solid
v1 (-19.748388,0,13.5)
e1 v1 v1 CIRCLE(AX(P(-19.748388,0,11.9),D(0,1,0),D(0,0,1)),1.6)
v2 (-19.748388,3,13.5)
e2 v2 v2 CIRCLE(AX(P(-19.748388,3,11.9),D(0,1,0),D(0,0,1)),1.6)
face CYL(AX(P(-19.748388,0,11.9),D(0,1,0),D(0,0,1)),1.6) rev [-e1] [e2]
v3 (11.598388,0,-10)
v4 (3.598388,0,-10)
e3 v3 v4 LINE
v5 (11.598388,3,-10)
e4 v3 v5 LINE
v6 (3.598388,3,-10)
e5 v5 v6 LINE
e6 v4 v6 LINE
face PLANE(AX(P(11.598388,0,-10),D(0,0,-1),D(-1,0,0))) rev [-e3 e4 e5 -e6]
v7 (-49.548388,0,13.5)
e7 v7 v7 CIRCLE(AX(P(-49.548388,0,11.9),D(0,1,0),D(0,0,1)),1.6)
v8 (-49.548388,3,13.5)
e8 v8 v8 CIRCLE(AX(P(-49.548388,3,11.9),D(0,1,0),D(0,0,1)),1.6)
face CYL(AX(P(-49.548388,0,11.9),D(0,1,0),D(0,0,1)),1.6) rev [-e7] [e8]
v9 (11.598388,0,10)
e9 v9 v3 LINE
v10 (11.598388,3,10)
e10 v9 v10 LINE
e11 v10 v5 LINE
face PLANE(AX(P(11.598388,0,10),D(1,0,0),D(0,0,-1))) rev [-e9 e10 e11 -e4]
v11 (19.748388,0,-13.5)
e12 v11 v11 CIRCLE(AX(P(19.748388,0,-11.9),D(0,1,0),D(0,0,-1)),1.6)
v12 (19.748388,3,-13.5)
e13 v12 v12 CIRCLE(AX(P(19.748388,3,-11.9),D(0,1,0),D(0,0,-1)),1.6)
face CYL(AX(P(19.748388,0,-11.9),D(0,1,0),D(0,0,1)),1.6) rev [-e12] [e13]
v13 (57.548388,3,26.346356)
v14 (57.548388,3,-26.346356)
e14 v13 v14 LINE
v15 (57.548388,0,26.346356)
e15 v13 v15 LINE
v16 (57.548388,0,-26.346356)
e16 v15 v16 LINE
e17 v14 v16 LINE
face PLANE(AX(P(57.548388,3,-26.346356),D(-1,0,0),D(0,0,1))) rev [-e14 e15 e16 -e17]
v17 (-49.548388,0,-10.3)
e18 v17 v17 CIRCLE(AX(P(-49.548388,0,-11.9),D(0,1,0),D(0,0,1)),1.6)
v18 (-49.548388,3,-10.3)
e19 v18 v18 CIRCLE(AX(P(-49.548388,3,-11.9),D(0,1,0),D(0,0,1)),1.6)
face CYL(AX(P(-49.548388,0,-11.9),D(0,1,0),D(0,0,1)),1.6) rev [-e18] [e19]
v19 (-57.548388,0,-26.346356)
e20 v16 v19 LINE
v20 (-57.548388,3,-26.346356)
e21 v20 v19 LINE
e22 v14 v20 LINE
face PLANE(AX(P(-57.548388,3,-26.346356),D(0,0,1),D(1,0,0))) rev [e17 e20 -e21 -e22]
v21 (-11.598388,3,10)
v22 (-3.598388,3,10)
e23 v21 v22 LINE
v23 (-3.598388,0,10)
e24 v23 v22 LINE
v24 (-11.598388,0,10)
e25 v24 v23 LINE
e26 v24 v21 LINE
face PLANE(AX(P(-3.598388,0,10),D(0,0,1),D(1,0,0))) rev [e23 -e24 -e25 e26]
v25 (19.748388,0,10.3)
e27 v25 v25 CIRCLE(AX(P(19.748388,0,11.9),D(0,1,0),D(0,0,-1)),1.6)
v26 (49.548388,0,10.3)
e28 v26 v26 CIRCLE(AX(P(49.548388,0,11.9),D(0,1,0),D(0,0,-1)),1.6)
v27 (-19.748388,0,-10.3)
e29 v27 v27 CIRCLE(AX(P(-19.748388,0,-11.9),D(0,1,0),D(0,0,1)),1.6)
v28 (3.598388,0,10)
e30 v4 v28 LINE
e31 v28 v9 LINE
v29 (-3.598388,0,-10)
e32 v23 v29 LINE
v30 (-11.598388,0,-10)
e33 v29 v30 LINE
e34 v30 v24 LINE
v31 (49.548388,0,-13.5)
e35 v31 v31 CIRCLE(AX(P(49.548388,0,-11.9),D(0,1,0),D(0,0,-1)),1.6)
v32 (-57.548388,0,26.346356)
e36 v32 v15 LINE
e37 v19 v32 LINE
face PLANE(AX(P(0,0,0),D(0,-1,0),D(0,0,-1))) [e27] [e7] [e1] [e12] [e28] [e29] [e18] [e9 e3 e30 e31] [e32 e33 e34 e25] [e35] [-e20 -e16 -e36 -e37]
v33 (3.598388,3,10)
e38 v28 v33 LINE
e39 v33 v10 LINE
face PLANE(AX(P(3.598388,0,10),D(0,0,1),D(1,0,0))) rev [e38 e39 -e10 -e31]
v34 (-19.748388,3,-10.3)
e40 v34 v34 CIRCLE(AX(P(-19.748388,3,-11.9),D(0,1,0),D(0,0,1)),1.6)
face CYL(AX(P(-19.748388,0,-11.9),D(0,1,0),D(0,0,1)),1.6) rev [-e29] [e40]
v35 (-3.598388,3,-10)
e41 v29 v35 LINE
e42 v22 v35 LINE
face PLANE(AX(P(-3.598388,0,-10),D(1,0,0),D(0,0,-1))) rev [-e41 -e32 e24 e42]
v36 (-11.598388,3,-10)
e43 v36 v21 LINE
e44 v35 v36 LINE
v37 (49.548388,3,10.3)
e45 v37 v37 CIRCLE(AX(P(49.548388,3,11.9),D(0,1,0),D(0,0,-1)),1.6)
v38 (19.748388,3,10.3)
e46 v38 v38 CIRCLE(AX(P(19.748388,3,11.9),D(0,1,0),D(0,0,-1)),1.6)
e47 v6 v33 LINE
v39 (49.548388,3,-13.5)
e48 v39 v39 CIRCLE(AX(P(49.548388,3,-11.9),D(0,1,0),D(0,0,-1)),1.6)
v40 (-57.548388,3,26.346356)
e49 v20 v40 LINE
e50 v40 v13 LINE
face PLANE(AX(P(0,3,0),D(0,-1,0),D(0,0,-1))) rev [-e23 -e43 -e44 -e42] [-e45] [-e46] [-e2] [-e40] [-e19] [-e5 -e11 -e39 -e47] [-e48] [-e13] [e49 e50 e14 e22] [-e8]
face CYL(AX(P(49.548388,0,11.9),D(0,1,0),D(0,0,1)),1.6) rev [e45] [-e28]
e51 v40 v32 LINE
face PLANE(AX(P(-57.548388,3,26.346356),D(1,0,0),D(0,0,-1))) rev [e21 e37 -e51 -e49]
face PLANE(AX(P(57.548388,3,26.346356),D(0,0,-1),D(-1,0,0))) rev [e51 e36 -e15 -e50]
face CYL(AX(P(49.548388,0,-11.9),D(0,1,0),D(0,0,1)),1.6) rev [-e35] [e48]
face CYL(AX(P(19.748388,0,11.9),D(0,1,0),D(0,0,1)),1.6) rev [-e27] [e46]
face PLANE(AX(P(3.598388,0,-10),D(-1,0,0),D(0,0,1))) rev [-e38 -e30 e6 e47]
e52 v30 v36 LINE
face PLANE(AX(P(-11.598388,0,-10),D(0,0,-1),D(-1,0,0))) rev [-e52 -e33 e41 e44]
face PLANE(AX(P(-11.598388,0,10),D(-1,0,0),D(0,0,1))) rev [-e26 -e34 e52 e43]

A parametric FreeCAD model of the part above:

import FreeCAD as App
import Part
import Sketcher
Q = App.Units.Quantity


def add_polygon(sketch, points):
    """Adds a closed chain of lines whose ends are joined by coincident constraints."""
    first, n = sketch.GeometryCount, len(points)
    for a, b in zip(points, points[1:] + points[:1]):
        sketch.addGeometry(Part.LineSegment(App.Vector(*a, 0), App.Vector(*b, 0)), False)
    for i in range(n):
        sketch.addConstraint(Sketcher.Constraint("Coincident", first + i, 2, first + (i + 1) % n, 1))

doc = App.newDocument("Part")
body = doc.addObject("PartDesign::Body", "Body")

# Sketch on XZ plane
sketch1 = body.newObject("Sketcher::SketchObject", "Sketch")
sketch1.AttachmentSupport = (doc.getObject("XZ_Plane"), [""])
sketch1.MapMode = "FlatFace"
add_polygon(sketch1, [(-58, -26), (-58, 26), (58, 26), (58, -26)])  # lines 0-3
sketch1.addConstraint(Sketcher.Constraint("Vertical", 0))
sketch1.addConstraint(Sketcher.Constraint("Horizontal", 1))
sketch1.addConstraint(Sketcher.Constraint("Vertical", 2))
sketch1.addConstraint(Sketcher.Constraint("Horizontal", 3))
sketch1.addConstraint(Sketcher.Constraint("Symmetric", 0, 2, 2, 2, -1, 1))
sketch1.addConstraint(Sketcher.Constraint("DistanceY", 0, 1, 0, 2, Q("52.692711 mm")))
sketch1.addConstraint(Sketcher.Constraint("DistanceX", 1, 1, 1, 2, Q("115.096777 mm")))
pad1 = body.newObject("PartDesign::Pad", "Pad")
pad1.Profile = sketch1
pad1.Length = 3
pad1.Reversed = True

# Sketch on XZ plane
sketch2 = body.newObject("Sketcher::SketchObject", "Sketch001")
sketch2.AttachmentSupport = (doc.getObject("XZ_Plane"), [""])
sketch2.MapMode = "FlatFace"
sketch2.AttachmentOffset = App.Placement(App.Vector(0, 0, -3), App.Rotation())
sketch2.addGeometry(Part.Circle(App.Vector(-49.5, -11.9, 0), App.Vector(0, 0, 1), 1.6), False)
sketch2.addGeometry(Part.Circle(App.Vector(-19.7, -11.9, 0), App.Vector(0, 0, 1), 1.6), False)
sketch2.addGeometry(Part.Circle(App.Vector(-49.5, 11.9, 0), App.Vector(0, 0, 1), 1.6), False)
sketch2.addGeometry(Part.Circle(App.Vector(-19.7, 11.9, 0), App.Vector(0, 0, 1), 1.6), False)
sketch2.addGeometry(Part.Circle(App.Vector(49.5, 11.9, 0), App.Vector(0, 0, 1), 1.6), False)
sketch2.addGeometry(Part.Circle(App.Vector(19.7, 11.9, 0), App.Vector(0, 0, 1), 1.6), False)
sketch2.addGeometry(Part.Circle(App.Vector(19.7, -11.9, 0), App.Vector(0, 0, 1), 1.6), False)
sketch2.addGeometry(Part.Circle(App.Vector(49.5, -11.9, 0), App.Vector(0, 0, 1), 1.6), False)
sketch2.addConstraint(Sketcher.Constraint("Equal", 0, 1))
sketch2.addConstraint(Sketcher.Constraint("Equal", 1, 2))
sketch2.addConstraint(Sketcher.Constraint("Equal", 2, 3))
sketch2.addConstraint(Sketcher.Constraint("Equal", 3, 4))
sketch2.addConstraint(Sketcher.Constraint("Equal", 4, 5))
sketch2.addConstraint(Sketcher.Constraint("Equal", 5, 6))
sketch2.addConstraint(Sketcher.Constraint("Equal", 6, 7))
sketch2.addConstraint(Sketcher.Constraint("Symmetric", 0, 3, 4, 3, -1, 1))
sketch2.addConstraint(Sketcher.Constraint("Symmetric", 1, 3, 5, 3, -1, 1))
sketch2.addConstraint(Sketcher.Constraint("Symmetric", 3, 3, 6, 3, -1, 1))
sketch2.addConstraint(Sketcher.Constraint("Symmetric", 2, 3, 7, 3, -1, 1))
sketch2.addConstraint(Sketcher.Constraint("Symmetric", 2, 3, 4, 3, -2))
sketch2.addConstraint(Sketcher.Constraint("Symmetric", 3, 3, 5, 3, -2))
sketch2.addConstraint(Sketcher.Constraint("Horizontal", 0, 3, 1, 3))
sketch2.addConstraint(Sketcher.Constraint("Diameter", 0, Q("3.2 mm")))
sketch2.addConstraint(Sketcher.Constraint("DistanceY", 0, 3, -1, 1, Q("11.9 mm")))
sketch2.addConstraint(Sketcher.Constraint("DistanceX", 0, 3, 1, 3, Q("29.8 mm")))
sketch2.addConstraint(Sketcher.Constraint("DistanceX", 0, 3, -1, 1, Q("49.548388 mm")))
pocket1 = body.newObject("PartDesign::Pocket", "Pocket")
pocket1.Profile = sketch2
pocket1.Type = "ThroughAll"
pocket1.Reversed = True

# Sketch on XZ plane
sketch3 = body.newObject("Sketcher::SketchObject", "Sketch002")
sketch3.AttachmentSupport = (doc.getObject("XZ_Plane"), [""])
sketch3.MapMode = "FlatFace"
sketch3.AttachmentOffset = App.Placement(App.Vector(0, 0, -3), App.Rotation())
add_polygon(sketch3, [(-12, -10), (-12, 10), (-4, 10), (-4, -10)])  # lines 0-3
add_polygon(sketch3, [(4, -10), (4, 10), (12, 10), (12, -10)])  # lines 4-7
sketch3.addConstraint(Sketcher.Constraint("Vertical", 0))
sketch3.addConstraint(Sketcher.Constraint("Horizontal", 1))
sketch3.addConstraint(Sketcher.Constraint("Vertical", 2))
sketch3.addConstraint(Sketcher.Constraint("Horizontal", 3))
sketch3.addConstraint(Sketcher.Constraint("Vertical", 4))
sketch3.addConstraint(Sketcher.Constraint("Horizontal", 5))
sketch3.addConstraint(Sketcher.Constraint("Vertical", 6))
sketch3.addConstraint(Sketcher.Constraint("Horizontal", 7))
sketch3.addConstraint(Sketcher.Constraint("Symmetric", 2, 2, 4, 2, -1, 1))
sketch3.addConstraint(Sketcher.Constraint("Symmetric", 0, 2, 6, 2, -1, 1))
sketch3.addConstraint(Sketcher.Constraint("Horizontal", 1, 2, 4, 2))
sketch3.addConstraint(Sketcher.Constraint("DistanceX", 1, 1, 1, 2, Q("8 mm")))
sketch3.addConstraint(Sketcher.Constraint("DistanceY", 0, 1, 0, 2, Q("20 mm")))
sketch3.addConstraint(Sketcher.Constraint("DistanceX", 0, 2, -1, 1, Q("11.598388 mm")))
pocket2 = body.newObject("PartDesign::Pocket", "Pocket001")
pocket2.Profile = sketch3
pocket2.Type = "ThroughAll"
pocket2.Reversed = True

doc.recompute()
